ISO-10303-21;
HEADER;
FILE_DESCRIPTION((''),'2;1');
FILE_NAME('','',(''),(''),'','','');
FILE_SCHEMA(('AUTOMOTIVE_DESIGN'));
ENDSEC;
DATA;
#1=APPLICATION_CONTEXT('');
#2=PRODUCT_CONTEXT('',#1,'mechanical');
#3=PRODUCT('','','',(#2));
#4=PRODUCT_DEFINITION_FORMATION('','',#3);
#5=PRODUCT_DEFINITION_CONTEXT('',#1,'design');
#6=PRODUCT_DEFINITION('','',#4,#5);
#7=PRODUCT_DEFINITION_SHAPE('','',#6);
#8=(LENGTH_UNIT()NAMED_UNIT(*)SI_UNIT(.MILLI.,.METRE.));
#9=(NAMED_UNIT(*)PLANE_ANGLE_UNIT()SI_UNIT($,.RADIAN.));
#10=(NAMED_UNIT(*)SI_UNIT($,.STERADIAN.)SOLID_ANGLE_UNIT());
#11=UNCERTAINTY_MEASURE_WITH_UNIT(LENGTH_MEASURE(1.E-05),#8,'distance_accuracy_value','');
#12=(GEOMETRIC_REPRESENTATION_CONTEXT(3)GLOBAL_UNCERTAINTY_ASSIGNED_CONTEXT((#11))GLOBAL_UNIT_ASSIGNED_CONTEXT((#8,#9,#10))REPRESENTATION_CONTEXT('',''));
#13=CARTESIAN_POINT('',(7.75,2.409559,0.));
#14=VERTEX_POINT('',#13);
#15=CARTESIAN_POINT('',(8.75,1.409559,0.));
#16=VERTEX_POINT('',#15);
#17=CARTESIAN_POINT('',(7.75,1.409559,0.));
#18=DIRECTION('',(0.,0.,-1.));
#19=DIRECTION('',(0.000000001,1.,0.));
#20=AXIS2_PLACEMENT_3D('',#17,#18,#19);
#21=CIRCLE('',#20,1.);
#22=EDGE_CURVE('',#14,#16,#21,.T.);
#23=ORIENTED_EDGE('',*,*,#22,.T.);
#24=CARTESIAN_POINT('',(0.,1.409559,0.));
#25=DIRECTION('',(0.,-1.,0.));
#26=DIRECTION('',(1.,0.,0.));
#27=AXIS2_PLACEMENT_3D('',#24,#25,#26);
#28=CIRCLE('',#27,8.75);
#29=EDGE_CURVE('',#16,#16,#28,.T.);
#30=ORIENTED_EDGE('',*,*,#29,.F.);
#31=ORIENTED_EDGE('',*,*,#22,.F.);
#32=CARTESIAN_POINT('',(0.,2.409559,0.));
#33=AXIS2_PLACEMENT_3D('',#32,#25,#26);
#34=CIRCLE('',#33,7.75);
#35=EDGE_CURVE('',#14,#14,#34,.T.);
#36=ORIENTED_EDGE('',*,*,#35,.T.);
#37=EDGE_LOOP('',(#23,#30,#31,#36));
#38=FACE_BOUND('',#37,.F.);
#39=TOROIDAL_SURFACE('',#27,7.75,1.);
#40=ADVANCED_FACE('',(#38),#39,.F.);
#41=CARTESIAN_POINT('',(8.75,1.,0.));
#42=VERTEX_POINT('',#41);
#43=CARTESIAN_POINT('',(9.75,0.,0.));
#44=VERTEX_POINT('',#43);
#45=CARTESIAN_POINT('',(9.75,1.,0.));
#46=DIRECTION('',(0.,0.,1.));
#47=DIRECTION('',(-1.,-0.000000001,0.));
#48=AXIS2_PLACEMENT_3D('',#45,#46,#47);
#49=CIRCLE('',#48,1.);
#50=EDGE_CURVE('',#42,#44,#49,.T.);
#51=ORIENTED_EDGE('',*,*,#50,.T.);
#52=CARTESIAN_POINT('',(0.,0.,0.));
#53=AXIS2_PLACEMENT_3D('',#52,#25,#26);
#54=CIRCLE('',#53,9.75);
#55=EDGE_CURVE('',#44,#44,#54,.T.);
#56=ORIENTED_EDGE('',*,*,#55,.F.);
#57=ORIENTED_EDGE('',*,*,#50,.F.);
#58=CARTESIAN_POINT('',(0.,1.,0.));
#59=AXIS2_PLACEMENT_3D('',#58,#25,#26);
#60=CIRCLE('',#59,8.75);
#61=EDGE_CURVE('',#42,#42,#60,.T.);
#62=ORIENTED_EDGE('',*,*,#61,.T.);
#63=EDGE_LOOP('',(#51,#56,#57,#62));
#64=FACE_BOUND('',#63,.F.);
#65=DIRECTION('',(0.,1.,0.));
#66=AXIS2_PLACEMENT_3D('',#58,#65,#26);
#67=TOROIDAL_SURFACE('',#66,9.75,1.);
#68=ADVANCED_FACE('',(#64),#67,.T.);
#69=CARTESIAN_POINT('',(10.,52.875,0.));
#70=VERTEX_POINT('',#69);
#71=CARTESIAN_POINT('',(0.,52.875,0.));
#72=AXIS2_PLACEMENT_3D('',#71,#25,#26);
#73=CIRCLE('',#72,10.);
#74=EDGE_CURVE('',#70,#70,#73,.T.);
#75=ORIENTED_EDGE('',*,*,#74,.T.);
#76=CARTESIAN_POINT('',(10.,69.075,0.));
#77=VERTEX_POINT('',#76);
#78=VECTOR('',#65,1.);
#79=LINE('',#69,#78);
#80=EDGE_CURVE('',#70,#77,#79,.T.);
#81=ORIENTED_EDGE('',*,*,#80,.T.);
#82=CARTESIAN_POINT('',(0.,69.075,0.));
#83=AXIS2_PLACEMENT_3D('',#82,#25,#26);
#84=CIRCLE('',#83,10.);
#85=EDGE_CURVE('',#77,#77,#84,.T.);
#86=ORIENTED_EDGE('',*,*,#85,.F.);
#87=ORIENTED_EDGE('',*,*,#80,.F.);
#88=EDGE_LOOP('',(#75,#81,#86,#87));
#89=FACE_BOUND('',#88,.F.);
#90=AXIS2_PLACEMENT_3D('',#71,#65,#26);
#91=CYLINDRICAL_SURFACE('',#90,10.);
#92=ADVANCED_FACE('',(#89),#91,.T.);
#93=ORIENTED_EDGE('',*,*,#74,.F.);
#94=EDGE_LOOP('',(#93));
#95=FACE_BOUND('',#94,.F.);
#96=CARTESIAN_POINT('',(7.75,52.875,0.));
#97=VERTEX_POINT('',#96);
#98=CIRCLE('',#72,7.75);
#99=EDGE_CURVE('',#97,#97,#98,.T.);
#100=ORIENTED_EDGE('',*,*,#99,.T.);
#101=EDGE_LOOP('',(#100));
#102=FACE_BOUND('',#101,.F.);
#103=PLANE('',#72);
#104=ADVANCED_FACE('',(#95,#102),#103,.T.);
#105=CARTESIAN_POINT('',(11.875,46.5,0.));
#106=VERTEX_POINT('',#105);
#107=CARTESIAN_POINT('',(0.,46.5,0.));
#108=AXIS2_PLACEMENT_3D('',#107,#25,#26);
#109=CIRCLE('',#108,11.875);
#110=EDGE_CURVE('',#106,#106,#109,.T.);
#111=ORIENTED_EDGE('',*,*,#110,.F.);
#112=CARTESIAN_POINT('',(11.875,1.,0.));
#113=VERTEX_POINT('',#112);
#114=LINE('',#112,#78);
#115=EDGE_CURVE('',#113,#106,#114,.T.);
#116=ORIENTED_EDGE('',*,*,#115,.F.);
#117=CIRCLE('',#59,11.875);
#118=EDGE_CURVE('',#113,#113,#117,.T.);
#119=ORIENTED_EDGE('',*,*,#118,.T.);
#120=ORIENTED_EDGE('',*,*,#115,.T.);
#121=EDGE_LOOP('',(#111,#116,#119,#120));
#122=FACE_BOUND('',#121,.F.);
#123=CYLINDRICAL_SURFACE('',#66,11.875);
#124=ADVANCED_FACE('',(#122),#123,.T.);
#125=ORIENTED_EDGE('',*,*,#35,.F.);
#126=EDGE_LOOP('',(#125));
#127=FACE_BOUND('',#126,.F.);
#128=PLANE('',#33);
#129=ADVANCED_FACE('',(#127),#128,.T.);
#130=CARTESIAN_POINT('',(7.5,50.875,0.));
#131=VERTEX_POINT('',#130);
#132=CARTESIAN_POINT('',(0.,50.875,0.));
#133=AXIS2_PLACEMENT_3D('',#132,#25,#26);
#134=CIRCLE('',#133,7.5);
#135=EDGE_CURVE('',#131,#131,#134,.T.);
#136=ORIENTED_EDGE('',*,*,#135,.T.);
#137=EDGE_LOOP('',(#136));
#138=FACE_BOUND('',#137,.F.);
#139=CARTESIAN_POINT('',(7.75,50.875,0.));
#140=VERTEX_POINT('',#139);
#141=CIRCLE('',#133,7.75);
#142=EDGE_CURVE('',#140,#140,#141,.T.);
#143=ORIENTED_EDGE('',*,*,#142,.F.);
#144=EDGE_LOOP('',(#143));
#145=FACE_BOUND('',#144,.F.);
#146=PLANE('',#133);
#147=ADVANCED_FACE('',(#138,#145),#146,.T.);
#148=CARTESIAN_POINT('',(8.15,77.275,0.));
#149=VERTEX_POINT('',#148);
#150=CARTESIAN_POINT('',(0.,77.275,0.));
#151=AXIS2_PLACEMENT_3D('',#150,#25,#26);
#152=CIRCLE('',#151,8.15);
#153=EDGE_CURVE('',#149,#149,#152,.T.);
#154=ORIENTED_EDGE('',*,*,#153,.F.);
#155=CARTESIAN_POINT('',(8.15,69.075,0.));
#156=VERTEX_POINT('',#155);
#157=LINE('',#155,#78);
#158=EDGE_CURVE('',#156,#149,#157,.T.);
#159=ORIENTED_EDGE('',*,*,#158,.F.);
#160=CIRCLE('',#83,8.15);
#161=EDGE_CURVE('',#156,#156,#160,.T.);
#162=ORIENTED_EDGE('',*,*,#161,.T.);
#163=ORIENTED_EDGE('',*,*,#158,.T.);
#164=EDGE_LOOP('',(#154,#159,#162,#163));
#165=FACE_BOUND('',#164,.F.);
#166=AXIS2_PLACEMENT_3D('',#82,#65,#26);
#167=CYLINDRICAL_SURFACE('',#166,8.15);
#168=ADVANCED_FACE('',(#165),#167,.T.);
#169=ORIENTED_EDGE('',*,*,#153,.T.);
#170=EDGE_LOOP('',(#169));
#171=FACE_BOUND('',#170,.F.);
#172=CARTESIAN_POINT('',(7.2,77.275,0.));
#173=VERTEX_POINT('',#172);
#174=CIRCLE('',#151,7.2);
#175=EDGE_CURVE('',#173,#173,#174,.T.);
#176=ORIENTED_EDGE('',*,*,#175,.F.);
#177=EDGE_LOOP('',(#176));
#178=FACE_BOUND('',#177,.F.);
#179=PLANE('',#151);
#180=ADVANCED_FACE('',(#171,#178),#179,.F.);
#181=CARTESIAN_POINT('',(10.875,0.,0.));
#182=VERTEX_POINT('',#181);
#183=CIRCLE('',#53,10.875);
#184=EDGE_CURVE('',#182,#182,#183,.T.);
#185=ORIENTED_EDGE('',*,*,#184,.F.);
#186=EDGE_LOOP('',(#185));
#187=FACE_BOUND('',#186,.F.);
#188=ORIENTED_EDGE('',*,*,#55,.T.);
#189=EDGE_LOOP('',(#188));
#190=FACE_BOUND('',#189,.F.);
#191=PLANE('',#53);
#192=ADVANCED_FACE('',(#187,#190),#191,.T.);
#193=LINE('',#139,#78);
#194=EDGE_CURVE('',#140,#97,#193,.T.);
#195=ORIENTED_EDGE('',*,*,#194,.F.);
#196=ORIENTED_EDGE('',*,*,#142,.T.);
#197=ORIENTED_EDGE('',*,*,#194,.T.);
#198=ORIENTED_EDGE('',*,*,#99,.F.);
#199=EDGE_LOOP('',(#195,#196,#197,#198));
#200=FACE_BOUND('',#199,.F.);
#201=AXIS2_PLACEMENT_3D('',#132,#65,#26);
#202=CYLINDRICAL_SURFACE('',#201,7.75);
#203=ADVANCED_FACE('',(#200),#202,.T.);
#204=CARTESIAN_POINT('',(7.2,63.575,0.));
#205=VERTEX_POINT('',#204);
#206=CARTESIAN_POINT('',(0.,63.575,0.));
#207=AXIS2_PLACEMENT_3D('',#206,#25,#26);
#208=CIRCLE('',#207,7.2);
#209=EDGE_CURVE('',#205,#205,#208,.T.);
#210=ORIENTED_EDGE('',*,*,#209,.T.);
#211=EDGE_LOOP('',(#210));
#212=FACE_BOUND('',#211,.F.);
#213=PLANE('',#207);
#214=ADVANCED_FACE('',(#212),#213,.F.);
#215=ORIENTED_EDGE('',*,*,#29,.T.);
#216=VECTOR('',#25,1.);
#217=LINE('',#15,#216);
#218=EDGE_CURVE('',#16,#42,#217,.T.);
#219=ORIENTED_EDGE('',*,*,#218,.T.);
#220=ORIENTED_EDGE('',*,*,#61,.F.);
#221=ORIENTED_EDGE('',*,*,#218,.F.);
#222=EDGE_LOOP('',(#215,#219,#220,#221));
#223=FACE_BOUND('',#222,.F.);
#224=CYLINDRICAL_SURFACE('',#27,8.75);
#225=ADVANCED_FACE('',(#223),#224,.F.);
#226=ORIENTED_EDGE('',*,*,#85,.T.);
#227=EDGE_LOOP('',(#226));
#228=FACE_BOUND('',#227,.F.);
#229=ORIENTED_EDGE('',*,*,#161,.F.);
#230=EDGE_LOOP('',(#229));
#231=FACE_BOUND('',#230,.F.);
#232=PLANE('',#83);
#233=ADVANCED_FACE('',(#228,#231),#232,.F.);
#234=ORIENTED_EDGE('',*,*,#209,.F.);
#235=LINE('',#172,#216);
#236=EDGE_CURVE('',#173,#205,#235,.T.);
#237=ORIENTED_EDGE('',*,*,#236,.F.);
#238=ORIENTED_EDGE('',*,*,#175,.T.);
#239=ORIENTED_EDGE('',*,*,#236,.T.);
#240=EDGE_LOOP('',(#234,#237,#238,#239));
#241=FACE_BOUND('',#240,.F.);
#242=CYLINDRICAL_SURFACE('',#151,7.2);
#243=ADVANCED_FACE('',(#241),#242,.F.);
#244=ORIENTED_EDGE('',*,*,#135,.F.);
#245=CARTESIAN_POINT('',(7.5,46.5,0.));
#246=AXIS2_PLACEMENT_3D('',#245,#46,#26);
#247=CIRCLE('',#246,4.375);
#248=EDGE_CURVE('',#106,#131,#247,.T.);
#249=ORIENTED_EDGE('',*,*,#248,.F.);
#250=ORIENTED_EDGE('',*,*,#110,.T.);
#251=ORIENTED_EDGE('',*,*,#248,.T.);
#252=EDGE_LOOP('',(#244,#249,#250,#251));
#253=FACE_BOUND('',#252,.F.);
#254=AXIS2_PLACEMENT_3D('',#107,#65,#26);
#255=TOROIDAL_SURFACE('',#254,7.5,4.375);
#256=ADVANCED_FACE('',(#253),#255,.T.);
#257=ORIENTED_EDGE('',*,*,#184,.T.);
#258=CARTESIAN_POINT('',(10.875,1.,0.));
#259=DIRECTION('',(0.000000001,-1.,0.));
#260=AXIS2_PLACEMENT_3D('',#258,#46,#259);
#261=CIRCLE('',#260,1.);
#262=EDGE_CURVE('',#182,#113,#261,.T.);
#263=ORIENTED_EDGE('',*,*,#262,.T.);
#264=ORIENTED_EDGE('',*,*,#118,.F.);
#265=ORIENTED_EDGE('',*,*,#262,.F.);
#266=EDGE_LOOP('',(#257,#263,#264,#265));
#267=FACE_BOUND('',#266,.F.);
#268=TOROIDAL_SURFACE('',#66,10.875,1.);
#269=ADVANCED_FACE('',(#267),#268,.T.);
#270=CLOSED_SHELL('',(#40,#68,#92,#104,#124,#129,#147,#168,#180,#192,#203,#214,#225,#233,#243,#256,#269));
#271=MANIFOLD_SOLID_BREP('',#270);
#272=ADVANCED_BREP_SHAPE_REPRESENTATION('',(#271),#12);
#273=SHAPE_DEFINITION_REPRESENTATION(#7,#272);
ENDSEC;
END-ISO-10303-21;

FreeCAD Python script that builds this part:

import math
import FreeCAD as App
import Part
import Sketcher

V = App.Vector
Q = App.Units.Quantity

doc = App.newDocument("Part")
body = doc.addObject("PartDesign::Body", "Body")

sketch1 = body.newObject("Sketcher::SketchObject", "Sketch")
sketch1.AttachmentSupport = (doc.getObject("XY_Plane"), [""])
sketch1.MapMode = "FlatFace"
sketch1.addGeometry(Part.ArcOfCircle(Part.Circle(V(9.75, 1, 0), V(0, 0, 1), 1), math.radians(-180), math.radians(-90)), False)
sketch1.addGeometry(Part.LineSegment(V(9.75, 0, 0), V(10.88, 0, 0)), False)
sketch1.addGeometry(Part.ArcOfCircle(Part.Circle(V(10.87, 1, 0), V(0, 0, 1), 1), math.radians(-90), math.radians(0)), False)
sketch1.addGeometry(Part.LineSegment(V(11.88, 1, 0), V(11.88, 46.5, 0)), False)
sketch1.addGeometry(Part.ArcOfCircle(Part.Circle(V(7.5, 46.5, 0), V(0, 0, 1), 4.37), math.radians(0), math.radians(90)), False)
sketch1.addGeometry(Part.LineSegment(V(7.5, 50.88, 0), V(7.75, 50.88, 0)), False)
sketch1.addGeometry(Part.LineSegment(V(7.75, 50.88, 0), V(7.75, 52.88, 0)), False)
sketch1.addGeometry(Part.LineSegment(V(7.75, 52.88, 0), V(10, 52.88, 0)), False)
sketch1.addGeometry(Part.LineSegment(V(10, 52.88, 0), V(10, 69.08, 0)), False)
sketch1.addGeometry(Part.LineSegment(V(10, 69.08, 0), V(8.15, 69.08, 0)), False)
sketch1.addGeometry(Part.LineSegment(V(8.15, 69.08, 0), V(8.15, 77.28, 0)), False)
sketch1.addGeometry(Part.LineSegment(V(8.15, 77.28, 0), V(7.2, 77.28, 0)), False)
sketch1.addGeometry(Part.LineSegment(V(7.2, 77.28, 0), V(7.2, 63.58, 0)), False)
sketch1.addGeometry(Part.LineSegment(V(7.2, 63.58, 0), V(0, 63.58, 0)), False)
sketch1.addGeometry(Part.LineSegment(V(0, 63.58, 0), V(0, 2.41, 0)), False)
sketch1.addGeometry(Part.LineSegment(V(0, 2.41, 0), V(7.75, 2.41, 0)), False)
sketch1.addGeometry(Part.ArcOfCircle(Part.Circle(V(7.75, 1.41, 0), V(0, 0, 1), 1), math.radians(0), math.radians(90)), False)
sketch1.addGeometry(Part.LineSegment(V(8.75, 1.41, 0), V(8.75, 1, 0)), False)
sketch1.addConstraint(Sketcher.Constraint("Tangent", 0, 2, 1, 1))
sketch1.addConstraint(Sketcher.Constraint("Tangent", 1, 2, 2, 1))
sketch1.addConstraint(Sketcher.Constraint("Tangent", 2, 2, 3, 1))
sketch1.addConstraint(Sketcher.Constraint("Tangent", 3, 2, 4, 1))
sketch1.addConstraint(Sketcher.Constraint("Tangent", 4, 2, 5, 1))
sketch1.addConstraint(Sketcher.Constraint("Coincident", 5, 2, 6, 1))
sketch1.addConstraint(Sketcher.Constraint("Coincident", 6, 2, 7, 1))
sketch1.addConstraint(Sketcher.Constraint("Coincident", 7, 2, 8, 1))
sketch1.addConstraint(Sketcher.Constraint("Coincident", 8, 2, 9, 1))
sketch1.addConstraint(Sketcher.Constraint("Coincident", 9, 2, 10, 1))
sketch1.addConstraint(Sketcher.Constraint("Coincident", 10, 2, 11, 1))
sketch1.addConstraint(Sketcher.Constraint("Coincident", 11, 2, 12, 1))
sketch1.addConstraint(Sketcher.Constraint("Coincident", 12, 2, 13, 1))
sketch1.addConstraint(Sketcher.Constraint("Coincident", 13, 2, 14, 1))
sketch1.addConstraint(Sketcher.Constraint("Coincident", 14, 2, 15, 1))
sketch1.addConstraint(Sketcher.Constraint("Tangent", 15, 2, 16, 2))
sketch1.addConstraint(Sketcher.Constraint("Tangent", 16, 1, 17, 1))
sketch1.addConstraint(Sketcher.Constraint("Tangent", 17, 2, 0, 1))
sketch1.addConstraint(Sketcher.Constraint("Horizontal", 1))
sketch1.addConstraint(Sketcher.Constraint("Vertical", 3))
sketch1.addConstraint(Sketcher.Constraint("Horizontal", 5))
sketch1.addConstraint(Sketcher.Constraint("Vertical", 6))
sketch1.addConstraint(Sketcher.Constraint("Horizontal", 7))
sketch1.addConstraint(Sketcher.Constraint("Vertical", 8))
sketch1.addConstraint(Sketcher.Constraint("Horizontal", 9))
sketch1.addConstraint(Sketcher.Constraint("Vertical", 10))
sketch1.addConstraint(Sketcher.Constraint("Horizontal", 11))
sketch1.addConstraint(Sketcher.Constraint("Vertical", 12))
sketch1.addConstraint(Sketcher.Constraint("Horizontal", 13))
sketch1.addConstraint(Sketcher.Constraint("Vertical", 14))
sketch1.addConstraint(Sketcher.Constraint("Horizontal", 15))
sketch1.addConstraint(Sketcher.Constraint("Vertical", 17))
sketch1.addConstraint(Sketcher.Constraint("Equal", 0, 2))
sketch1.addConstraint(Sketcher.Constraint("Equal", 2, 16))
sketch1.addConstraint(Sketcher.Constraint("PointOnObject", 0, 2, -1))
sketch1.addConstraint(Sketcher.Constraint("PointOnObject", 13, 2, -2))
sketch1.addConstraint(Sketcher.Constraint("Vertical", 16, 3, 5, 2))
sketch1.addConstraint(Sketcher.Constraint("Radius", 0, Q("1 mm")))
sketch1.addConstraint(Sketcher.Constraint("DistanceY", 6, 1, 6, 2, Q("2 mm")))
sketch1.addConstraint(Sketcher.Constraint("DistanceX", 13, 2, 13, 1, Q("7.2 mm")))
sketch1.addConstraint(Sketcher.Constraint("DistanceY", 3, 1, 3, 2, Q("45.5 mm")))
sketch1.addConstraint(Sketcher.Constraint("DistanceY", 8, 1, 8, 2, Q("16.2 mm")))
sketch1.addConstraint(Sketcher.Constraint("DistanceY", 10, 1, 10, 2, Q("8.2 mm")))
sketch1.addConstraint(Sketcher.Constraint("DistanceY", 12, 2, 12, 1, Q("13.7 mm")))
sketch1.addConstraint(Sketcher.Constraint("DistanceX", -1, 1, 7, 2, Q("10 mm")))
sketch1.addConstraint(Sketcher.Constraint("Radius", 4, Q("4.375 mm")))
sketch1.addConstraint(Sketcher.Constraint("DistanceX", 5, 1, 5, 2, Q("0.25 mm")))
sketch1.addConstraint(Sketcher.Constraint("DistanceX", 7, 1, 7, 2, Q("2.25 mm")))
sketch1.addConstraint(Sketcher.Constraint("DistanceX", 9, 2, 9, 1, Q("1.85 mm")))
sketch1.addConstraint(Sketcher.Constraint("DistanceY", 14, 2, 14, 1, Q("61.165441 mm")))
revolution = body.newObject("PartDesign::Revolution", "Revolution")
revolution.Profile = sketch1
revolution.ReferenceAxis = (sketch1, ["V_Axis"])
revolution.Angle = 360

doc.recompute()
